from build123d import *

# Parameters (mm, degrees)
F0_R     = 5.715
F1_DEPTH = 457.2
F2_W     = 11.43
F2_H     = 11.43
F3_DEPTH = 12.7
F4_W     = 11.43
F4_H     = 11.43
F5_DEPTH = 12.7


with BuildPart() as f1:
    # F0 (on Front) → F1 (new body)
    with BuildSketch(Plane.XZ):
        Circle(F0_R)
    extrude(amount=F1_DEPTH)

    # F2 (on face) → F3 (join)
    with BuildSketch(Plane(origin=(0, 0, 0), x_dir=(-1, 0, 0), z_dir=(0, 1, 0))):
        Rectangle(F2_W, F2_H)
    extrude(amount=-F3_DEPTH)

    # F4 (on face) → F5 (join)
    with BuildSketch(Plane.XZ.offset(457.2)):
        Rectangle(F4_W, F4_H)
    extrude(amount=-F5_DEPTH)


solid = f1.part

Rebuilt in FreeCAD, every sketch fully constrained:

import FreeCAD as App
import Part
import Sketcher
Q = App.Units.Quantity


def add_polygon(sketch, points):
    """Adds a closed chain of lines whose ends are joined by coincident constraints."""
    first, n = sketch.GeometryCount, len(points)
    for a, b in zip(points, points[1:] + points[:1]):
        sketch.addGeometry(Part.LineSegment(App.Vector(*a, 0), App.Vector(*b, 0)), False)
    for i in range(n):
        sketch.addConstraint(Sketcher.Constraint("Coincident", first + i, 2, first + (i + 1) % n, 1))

doc = App.newDocument("Part")
body = doc.addObject("PartDesign::Body", "Body")

sketch1 = doc.addObject("Sketcher::SketchObject", "Sketch")
body.addObject(sketch1)
sketch1.AttachmentSupport = (doc.XZ_Plane, [""])
sketch1.MapMode = "FlatFace"
sketch1.addGeometry(Part.Circle(App.Vector(0, 0, 0), App.Vector(0, 0, 1), 6), False)
sketch1.addConstraint([
    Sketcher.Constraint("Coincident", 0, 3, -1, 1),
    Sketcher.Constraint("Diameter", 0, Q("0.45 in")),
])
pad1 = doc.addObject("PartDesign::Pad", "Pad")
body.addObject(pad1)
pad1.Profile = sketch1
pad1.Length = Q("18 in")

sketch2 = doc.addObject("Sketcher::SketchObject", "Sketch001")
body.addObject(sketch2)
sketch2.AttachmentSupport = (doc.XZ_Plane, [""])
sketch2.MapMode = "FlatFace"
add_polygon(sketch2, [(6, 6), (6, -6), (-6, -6), (-6, 6)])
sketch2.addConstraint([
    Sketcher.Constraint("Vertical", 0),
    Sketcher.Constraint("Horizontal", 1),
    Sketcher.Constraint("Vertical", 2),
    Sketcher.Constraint("Horizontal", 3),
    Sketcher.Constraint("Symmetric", 0, 2, 2, 2, -1, 1),
    Sketcher.Constraint("Equal", 3, 0),
    Sketcher.Constraint("DistanceX", 1, 2, 1, 1, Q("0.45 in")),
])
pad2 = doc.addObject("PartDesign::Pad", "Pad001")
body.addObject(pad2)
pad2.Profile = sketch2
pad2.Length = Q("0.5 in")

sketch3 = doc.addObject("Sketcher::SketchObject", "Sketch002")
body.addObject(sketch3)
sketch3.AttachmentSupport = (doc.XZ_Plane, [""])
sketch3.MapMode = "FlatFace"
sketch3.AttachmentOffset = App.Placement(App.Vector(0, 0, 18 * 25.4), App.Rotation())
add_polygon(sketch3, [(-6, 6), (-6, -6), (6, -6), (6, 6)])
sketch3.addConstraint([
    Sketcher.Constraint("Vertical", 0),
    Sketcher.Constraint("Horizontal", 1),
    Sketcher.Constraint("Vertical", 2),
    Sketcher.Constraint("Horizontal", 3),
    Sketcher.Constraint("Symmetric", 0, 2, 2, 2, -1, 1),
    Sketcher.Constraint("Equal", 3, 0),
    Sketcher.Constraint("DistanceX", 1, 1, 1, 2, Q("0.45 in")),
])
pad3 = doc.addObject("PartDesign::Pad", "Pad002")
body.addObject(pad3)
pad3.Profile = sketch3
pad3.Length = Q("0.5 in")
pad3.Reversed = True

doc.recompute()
